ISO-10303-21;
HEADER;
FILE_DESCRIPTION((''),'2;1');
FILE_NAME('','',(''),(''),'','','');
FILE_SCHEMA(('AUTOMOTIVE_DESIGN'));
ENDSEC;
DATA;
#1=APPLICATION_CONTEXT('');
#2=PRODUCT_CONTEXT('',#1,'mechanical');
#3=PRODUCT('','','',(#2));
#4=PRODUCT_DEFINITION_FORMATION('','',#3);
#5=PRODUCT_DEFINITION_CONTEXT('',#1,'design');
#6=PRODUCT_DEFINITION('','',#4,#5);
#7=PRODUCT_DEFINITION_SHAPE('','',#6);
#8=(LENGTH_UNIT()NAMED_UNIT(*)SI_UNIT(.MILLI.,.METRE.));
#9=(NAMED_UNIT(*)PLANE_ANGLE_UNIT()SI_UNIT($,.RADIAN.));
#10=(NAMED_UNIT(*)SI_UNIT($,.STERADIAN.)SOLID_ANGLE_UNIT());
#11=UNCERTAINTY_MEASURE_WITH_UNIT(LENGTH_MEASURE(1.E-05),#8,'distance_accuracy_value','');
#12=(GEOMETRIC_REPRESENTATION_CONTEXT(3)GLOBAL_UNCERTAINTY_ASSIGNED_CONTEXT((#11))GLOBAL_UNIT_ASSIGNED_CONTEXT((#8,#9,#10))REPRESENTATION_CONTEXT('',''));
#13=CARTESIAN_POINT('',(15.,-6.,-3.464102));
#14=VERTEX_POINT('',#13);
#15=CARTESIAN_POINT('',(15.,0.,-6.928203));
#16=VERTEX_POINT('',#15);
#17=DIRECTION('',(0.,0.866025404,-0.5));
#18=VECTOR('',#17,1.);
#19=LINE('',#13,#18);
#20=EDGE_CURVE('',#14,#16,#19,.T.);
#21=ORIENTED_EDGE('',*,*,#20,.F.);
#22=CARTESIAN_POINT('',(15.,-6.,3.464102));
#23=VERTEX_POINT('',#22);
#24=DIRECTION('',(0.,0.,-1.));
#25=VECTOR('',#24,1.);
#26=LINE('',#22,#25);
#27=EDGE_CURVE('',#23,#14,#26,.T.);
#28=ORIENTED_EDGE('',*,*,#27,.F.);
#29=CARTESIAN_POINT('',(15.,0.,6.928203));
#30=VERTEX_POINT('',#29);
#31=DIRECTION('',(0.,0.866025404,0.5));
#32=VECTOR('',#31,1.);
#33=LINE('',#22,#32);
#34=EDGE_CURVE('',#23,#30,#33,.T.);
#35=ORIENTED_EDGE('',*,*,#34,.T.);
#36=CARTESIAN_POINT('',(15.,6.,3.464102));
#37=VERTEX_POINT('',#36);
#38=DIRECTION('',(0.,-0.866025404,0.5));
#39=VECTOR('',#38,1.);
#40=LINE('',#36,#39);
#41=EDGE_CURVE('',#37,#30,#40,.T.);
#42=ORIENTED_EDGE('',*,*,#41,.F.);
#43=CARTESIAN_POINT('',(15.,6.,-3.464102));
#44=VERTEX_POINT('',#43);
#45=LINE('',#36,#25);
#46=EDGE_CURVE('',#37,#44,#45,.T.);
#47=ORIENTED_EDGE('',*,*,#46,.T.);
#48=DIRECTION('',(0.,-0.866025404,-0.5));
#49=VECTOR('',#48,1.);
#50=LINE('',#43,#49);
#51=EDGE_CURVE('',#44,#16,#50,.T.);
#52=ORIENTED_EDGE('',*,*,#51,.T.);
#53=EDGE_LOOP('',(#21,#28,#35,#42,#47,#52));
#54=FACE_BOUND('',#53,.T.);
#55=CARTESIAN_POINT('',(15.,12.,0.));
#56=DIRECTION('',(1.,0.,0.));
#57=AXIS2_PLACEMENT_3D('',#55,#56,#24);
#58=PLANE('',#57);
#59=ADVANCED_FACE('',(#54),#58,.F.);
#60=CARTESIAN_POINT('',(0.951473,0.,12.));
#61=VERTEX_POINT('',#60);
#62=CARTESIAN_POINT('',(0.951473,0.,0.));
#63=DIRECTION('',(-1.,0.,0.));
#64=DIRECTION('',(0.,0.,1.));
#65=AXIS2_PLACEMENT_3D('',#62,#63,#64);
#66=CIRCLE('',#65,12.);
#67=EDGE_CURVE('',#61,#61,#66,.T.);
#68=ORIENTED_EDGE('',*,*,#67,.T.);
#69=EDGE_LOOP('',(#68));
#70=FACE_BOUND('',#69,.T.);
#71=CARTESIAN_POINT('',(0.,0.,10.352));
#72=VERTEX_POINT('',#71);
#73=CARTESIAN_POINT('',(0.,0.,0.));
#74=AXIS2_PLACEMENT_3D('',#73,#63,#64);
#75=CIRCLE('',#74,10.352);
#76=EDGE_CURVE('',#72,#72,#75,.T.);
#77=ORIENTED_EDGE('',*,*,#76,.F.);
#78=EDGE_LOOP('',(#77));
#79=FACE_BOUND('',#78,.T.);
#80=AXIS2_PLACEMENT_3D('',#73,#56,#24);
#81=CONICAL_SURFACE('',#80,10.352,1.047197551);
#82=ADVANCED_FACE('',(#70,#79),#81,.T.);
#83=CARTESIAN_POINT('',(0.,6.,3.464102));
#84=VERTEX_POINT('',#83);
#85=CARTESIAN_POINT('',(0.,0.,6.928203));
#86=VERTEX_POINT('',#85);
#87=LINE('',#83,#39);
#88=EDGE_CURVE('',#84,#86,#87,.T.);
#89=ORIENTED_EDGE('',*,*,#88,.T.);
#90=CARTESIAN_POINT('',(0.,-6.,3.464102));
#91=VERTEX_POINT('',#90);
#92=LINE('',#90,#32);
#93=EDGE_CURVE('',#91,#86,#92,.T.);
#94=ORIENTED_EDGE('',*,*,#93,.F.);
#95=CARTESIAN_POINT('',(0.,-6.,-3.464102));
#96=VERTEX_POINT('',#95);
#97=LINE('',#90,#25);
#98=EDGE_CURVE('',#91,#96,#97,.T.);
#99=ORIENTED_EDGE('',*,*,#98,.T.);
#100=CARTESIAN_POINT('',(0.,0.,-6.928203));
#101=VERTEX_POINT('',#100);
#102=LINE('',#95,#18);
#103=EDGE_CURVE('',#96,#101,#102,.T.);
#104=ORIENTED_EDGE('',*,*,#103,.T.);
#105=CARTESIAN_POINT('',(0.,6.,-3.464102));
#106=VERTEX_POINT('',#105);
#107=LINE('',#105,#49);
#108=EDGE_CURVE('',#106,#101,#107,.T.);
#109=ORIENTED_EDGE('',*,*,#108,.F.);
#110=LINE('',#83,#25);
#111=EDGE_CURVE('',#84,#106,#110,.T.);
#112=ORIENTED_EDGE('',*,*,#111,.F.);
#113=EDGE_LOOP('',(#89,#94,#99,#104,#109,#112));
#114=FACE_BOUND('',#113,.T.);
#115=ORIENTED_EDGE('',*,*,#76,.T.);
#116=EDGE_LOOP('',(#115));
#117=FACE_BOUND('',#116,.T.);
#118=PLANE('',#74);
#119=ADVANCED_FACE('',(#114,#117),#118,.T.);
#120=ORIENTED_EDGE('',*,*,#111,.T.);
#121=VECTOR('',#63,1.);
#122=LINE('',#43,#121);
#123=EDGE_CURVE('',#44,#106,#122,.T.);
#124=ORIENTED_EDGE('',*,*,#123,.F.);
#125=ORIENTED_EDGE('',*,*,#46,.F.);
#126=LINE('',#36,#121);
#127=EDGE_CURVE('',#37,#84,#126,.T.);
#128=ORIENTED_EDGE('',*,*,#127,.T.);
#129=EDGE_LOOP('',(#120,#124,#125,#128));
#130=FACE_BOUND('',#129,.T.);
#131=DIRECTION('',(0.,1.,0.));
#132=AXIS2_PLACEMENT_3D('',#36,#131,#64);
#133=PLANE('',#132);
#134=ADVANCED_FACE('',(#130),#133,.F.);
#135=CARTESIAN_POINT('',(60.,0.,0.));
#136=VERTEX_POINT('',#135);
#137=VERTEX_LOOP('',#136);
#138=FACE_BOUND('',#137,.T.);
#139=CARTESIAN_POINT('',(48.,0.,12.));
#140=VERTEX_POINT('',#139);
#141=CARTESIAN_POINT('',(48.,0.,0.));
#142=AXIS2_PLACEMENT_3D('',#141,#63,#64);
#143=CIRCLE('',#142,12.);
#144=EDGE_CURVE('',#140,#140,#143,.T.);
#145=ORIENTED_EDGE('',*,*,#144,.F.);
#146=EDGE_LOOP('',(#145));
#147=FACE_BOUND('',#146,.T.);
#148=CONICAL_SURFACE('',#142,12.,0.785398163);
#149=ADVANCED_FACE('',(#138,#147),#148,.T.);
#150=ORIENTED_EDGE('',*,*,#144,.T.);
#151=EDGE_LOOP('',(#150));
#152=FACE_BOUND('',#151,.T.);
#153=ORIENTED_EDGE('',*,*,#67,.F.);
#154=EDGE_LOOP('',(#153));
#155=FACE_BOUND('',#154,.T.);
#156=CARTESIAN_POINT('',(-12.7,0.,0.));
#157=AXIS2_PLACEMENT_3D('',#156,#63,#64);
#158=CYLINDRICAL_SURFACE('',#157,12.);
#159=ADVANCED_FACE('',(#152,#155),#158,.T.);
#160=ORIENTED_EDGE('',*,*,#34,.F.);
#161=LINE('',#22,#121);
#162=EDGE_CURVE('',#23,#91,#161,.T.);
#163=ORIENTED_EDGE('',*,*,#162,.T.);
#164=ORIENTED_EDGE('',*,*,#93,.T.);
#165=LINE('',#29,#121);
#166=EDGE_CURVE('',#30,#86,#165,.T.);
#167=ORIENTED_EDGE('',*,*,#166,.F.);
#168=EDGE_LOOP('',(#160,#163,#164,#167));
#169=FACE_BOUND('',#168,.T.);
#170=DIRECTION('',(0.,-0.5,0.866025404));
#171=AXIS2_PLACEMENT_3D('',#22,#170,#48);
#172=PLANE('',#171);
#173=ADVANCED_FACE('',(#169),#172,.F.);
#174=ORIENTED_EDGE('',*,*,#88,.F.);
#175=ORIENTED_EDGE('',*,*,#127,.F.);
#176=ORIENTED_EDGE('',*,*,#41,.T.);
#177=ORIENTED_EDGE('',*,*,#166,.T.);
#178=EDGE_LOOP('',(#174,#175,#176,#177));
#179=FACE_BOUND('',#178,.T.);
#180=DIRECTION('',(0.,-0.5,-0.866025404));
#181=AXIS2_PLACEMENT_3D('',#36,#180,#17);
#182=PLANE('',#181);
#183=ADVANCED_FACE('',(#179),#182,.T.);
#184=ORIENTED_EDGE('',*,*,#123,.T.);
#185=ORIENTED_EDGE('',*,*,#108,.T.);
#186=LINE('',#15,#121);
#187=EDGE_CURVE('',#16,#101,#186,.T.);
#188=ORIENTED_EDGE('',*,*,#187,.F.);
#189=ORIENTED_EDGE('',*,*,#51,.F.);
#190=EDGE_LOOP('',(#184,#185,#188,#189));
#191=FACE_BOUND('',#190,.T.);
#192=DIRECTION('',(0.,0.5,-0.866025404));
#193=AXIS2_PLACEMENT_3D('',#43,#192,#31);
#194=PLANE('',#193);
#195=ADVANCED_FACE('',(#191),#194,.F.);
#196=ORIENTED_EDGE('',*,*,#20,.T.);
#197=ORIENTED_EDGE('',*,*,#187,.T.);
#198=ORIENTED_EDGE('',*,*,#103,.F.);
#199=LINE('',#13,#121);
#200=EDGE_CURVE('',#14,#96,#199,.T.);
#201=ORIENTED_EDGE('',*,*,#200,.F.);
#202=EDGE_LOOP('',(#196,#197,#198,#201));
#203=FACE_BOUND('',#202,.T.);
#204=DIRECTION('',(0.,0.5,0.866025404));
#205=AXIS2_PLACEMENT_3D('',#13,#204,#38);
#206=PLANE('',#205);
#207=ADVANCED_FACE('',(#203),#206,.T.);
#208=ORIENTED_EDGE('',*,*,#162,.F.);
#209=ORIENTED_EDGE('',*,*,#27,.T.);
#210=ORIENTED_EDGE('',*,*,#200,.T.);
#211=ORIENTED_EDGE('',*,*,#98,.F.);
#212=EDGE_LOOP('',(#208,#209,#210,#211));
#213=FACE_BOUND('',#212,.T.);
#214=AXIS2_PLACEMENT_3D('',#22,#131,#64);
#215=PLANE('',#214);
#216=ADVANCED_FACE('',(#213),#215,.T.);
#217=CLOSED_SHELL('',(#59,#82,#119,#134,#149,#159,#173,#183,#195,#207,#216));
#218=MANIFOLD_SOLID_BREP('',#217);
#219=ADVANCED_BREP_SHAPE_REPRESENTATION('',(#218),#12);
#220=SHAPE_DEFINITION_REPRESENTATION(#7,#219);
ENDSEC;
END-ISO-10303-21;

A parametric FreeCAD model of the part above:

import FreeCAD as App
import Part
import Sketcher
Q = App.Units.Quantity

doc = App.newDocument("Part")
body = doc.addObject("PartDesign::Body", "Body")

# Sketch on XY plane
sketch1 = body.newObject("Sketcher::SketchObject", "Sketch")
sketch1.AttachmentSupport = (doc.getObject("XY_Plane"), [""])
sketch1.MapMode = "FlatFace"
sketch1.addGeometry([
    Part.LineSegment(App.Vector(0, 10.352, 0), App.Vector(0, 0, 0)),  # 0
    Part.LineSegment(App.Vector(0, 0, 0), App.Vector(60, 0, 0)),  # 1
    Part.LineSegment(App.Vector(60, 0, 0), App.Vector(48, 12, 0)),  # 2
    Part.LineSegment(App.Vector(48, 12, 0), App.Vector(0.951473, 12, 0)),  # 3
    Part.LineSegment(App.Vector(0.951473, 12, 0), App.Vector(0, 10.352, 0)),  # 4
], False)
sketch1.addConstraint([
    Sketcher.Constraint("Coincident", 0, 2, 1, 1),
    Sketcher.Constraint("Coincident", 1, 2, 2, 1),
    Sketcher.Constraint("Coincident", 2, 2, 3, 1),
    Sketcher.Constraint("Coincident", 3, 2, 4, 1),
    Sketcher.Constraint("Coincident", 4, 2, 0, 1),
    Sketcher.Constraint("Vertical", 0),
    Sketcher.Constraint("Horizontal", 1),
    Sketcher.Constraint("Horizontal", 3),
    Sketcher.Constraint("Coincident", 0, 2, -1, 1),
    Sketcher.Constraint("DistanceX", 1, 1, 1, 2, Q("60 mm")),
    Sketcher.Constraint("Angle", 2, Q("135 deg")),
    Sketcher.Constraint("Angle", 4, Q("-120 deg")),
    Sketcher.Constraint("DistanceX", -1, 1, 2, 2, Q("48 mm")),
    Sketcher.Constraint("DistanceY", 0, 2, 0, 1, Q("10.352 mm")),
])
revolution = body.newObject("PartDesign::Revolution", "Revolution")
revolution.Profile = sketch1
revolution.ReferenceAxis = (sketch1, ["H_Axis"])
revolution.Angle = 360

# Sketch on YZ plane
sketch2 = body.newObject("Sketcher::SketchObject", "Sketch001")
sketch2.AttachmentSupport = (doc.getObject("YZ_Plane"), [""])
sketch2.MapMode = "FlatFace"
sketch2.addGeometry([
    Part.LineSegment(App.Vector(6, 3.464102, 0), App.Vector(6, -3.464102, 0)),  # 0
    Part.LineSegment(App.Vector(6, -3.464102, 0), App.Vector(0, -6.928203, 0)),  # 1
    Part.LineSegment(App.Vector(0, -6.928203, 0), App.Vector(-6, -3.464102, 0)),  # 2
    Part.LineSegment(App.Vector(-6, -3.464102, 0), App.Vector(-6, 3.464102, 0)),  # 3
    Part.LineSegment(App.Vector(-6, 3.464102, 0), App.Vector(0, 6.928203, 0)),  # 4
    Part.LineSegment(App.Vector(0, 6.928203, 0), App.Vector(6, 3.464102, 0)),  # 5
], False)
sketch2.addConstraint([
    Sketcher.Constraint("Coincident", 0, 2, 1, 1),
    Sketcher.Constraint("Coincident", 1, 2, 2, 1),
    Sketcher.Constraint("Coincident", 2, 2, 3, 1),
    Sketcher.Constraint("Coincident", 3, 2, 4, 1),
    Sketcher.Constraint("Coincident", 4, 2, 5, 1),
    Sketcher.Constraint("Coincident", 5, 2, 0, 1),
    Sketcher.Constraint("Vertical", 0),
    Sketcher.Constraint("Vertical", 3),
    Sketcher.Constraint("Symmetric", 0, 2, 3, 2, -1, 1),
    Sketcher.Constraint("Symmetric", 1, 2, 4, 2, -1, 1),
    Sketcher.Constraint("PointOnObject", 1, 2, -2),
    Sketcher.Constraint("Parallel", 2, 5),
    Sketcher.Constraint("Horizontal", 0, 2, 2, 2),
    Sketcher.Constraint("Angle", 1, Q("-150 deg")),
    Sketcher.Constraint("DistanceX", -1, 1, 0, 2, Q("6 mm")),
    Sketcher.Constraint("DistanceY", 0, 2, -1, 1, Q("3.464102 mm")),
])
pocket1 = body.newObject("PartDesign::Pocket", "Pocket")
pocket1.Profile = sketch2
pocket1.Length = 15
pocket1.Reversed = True

doc.recompute()
